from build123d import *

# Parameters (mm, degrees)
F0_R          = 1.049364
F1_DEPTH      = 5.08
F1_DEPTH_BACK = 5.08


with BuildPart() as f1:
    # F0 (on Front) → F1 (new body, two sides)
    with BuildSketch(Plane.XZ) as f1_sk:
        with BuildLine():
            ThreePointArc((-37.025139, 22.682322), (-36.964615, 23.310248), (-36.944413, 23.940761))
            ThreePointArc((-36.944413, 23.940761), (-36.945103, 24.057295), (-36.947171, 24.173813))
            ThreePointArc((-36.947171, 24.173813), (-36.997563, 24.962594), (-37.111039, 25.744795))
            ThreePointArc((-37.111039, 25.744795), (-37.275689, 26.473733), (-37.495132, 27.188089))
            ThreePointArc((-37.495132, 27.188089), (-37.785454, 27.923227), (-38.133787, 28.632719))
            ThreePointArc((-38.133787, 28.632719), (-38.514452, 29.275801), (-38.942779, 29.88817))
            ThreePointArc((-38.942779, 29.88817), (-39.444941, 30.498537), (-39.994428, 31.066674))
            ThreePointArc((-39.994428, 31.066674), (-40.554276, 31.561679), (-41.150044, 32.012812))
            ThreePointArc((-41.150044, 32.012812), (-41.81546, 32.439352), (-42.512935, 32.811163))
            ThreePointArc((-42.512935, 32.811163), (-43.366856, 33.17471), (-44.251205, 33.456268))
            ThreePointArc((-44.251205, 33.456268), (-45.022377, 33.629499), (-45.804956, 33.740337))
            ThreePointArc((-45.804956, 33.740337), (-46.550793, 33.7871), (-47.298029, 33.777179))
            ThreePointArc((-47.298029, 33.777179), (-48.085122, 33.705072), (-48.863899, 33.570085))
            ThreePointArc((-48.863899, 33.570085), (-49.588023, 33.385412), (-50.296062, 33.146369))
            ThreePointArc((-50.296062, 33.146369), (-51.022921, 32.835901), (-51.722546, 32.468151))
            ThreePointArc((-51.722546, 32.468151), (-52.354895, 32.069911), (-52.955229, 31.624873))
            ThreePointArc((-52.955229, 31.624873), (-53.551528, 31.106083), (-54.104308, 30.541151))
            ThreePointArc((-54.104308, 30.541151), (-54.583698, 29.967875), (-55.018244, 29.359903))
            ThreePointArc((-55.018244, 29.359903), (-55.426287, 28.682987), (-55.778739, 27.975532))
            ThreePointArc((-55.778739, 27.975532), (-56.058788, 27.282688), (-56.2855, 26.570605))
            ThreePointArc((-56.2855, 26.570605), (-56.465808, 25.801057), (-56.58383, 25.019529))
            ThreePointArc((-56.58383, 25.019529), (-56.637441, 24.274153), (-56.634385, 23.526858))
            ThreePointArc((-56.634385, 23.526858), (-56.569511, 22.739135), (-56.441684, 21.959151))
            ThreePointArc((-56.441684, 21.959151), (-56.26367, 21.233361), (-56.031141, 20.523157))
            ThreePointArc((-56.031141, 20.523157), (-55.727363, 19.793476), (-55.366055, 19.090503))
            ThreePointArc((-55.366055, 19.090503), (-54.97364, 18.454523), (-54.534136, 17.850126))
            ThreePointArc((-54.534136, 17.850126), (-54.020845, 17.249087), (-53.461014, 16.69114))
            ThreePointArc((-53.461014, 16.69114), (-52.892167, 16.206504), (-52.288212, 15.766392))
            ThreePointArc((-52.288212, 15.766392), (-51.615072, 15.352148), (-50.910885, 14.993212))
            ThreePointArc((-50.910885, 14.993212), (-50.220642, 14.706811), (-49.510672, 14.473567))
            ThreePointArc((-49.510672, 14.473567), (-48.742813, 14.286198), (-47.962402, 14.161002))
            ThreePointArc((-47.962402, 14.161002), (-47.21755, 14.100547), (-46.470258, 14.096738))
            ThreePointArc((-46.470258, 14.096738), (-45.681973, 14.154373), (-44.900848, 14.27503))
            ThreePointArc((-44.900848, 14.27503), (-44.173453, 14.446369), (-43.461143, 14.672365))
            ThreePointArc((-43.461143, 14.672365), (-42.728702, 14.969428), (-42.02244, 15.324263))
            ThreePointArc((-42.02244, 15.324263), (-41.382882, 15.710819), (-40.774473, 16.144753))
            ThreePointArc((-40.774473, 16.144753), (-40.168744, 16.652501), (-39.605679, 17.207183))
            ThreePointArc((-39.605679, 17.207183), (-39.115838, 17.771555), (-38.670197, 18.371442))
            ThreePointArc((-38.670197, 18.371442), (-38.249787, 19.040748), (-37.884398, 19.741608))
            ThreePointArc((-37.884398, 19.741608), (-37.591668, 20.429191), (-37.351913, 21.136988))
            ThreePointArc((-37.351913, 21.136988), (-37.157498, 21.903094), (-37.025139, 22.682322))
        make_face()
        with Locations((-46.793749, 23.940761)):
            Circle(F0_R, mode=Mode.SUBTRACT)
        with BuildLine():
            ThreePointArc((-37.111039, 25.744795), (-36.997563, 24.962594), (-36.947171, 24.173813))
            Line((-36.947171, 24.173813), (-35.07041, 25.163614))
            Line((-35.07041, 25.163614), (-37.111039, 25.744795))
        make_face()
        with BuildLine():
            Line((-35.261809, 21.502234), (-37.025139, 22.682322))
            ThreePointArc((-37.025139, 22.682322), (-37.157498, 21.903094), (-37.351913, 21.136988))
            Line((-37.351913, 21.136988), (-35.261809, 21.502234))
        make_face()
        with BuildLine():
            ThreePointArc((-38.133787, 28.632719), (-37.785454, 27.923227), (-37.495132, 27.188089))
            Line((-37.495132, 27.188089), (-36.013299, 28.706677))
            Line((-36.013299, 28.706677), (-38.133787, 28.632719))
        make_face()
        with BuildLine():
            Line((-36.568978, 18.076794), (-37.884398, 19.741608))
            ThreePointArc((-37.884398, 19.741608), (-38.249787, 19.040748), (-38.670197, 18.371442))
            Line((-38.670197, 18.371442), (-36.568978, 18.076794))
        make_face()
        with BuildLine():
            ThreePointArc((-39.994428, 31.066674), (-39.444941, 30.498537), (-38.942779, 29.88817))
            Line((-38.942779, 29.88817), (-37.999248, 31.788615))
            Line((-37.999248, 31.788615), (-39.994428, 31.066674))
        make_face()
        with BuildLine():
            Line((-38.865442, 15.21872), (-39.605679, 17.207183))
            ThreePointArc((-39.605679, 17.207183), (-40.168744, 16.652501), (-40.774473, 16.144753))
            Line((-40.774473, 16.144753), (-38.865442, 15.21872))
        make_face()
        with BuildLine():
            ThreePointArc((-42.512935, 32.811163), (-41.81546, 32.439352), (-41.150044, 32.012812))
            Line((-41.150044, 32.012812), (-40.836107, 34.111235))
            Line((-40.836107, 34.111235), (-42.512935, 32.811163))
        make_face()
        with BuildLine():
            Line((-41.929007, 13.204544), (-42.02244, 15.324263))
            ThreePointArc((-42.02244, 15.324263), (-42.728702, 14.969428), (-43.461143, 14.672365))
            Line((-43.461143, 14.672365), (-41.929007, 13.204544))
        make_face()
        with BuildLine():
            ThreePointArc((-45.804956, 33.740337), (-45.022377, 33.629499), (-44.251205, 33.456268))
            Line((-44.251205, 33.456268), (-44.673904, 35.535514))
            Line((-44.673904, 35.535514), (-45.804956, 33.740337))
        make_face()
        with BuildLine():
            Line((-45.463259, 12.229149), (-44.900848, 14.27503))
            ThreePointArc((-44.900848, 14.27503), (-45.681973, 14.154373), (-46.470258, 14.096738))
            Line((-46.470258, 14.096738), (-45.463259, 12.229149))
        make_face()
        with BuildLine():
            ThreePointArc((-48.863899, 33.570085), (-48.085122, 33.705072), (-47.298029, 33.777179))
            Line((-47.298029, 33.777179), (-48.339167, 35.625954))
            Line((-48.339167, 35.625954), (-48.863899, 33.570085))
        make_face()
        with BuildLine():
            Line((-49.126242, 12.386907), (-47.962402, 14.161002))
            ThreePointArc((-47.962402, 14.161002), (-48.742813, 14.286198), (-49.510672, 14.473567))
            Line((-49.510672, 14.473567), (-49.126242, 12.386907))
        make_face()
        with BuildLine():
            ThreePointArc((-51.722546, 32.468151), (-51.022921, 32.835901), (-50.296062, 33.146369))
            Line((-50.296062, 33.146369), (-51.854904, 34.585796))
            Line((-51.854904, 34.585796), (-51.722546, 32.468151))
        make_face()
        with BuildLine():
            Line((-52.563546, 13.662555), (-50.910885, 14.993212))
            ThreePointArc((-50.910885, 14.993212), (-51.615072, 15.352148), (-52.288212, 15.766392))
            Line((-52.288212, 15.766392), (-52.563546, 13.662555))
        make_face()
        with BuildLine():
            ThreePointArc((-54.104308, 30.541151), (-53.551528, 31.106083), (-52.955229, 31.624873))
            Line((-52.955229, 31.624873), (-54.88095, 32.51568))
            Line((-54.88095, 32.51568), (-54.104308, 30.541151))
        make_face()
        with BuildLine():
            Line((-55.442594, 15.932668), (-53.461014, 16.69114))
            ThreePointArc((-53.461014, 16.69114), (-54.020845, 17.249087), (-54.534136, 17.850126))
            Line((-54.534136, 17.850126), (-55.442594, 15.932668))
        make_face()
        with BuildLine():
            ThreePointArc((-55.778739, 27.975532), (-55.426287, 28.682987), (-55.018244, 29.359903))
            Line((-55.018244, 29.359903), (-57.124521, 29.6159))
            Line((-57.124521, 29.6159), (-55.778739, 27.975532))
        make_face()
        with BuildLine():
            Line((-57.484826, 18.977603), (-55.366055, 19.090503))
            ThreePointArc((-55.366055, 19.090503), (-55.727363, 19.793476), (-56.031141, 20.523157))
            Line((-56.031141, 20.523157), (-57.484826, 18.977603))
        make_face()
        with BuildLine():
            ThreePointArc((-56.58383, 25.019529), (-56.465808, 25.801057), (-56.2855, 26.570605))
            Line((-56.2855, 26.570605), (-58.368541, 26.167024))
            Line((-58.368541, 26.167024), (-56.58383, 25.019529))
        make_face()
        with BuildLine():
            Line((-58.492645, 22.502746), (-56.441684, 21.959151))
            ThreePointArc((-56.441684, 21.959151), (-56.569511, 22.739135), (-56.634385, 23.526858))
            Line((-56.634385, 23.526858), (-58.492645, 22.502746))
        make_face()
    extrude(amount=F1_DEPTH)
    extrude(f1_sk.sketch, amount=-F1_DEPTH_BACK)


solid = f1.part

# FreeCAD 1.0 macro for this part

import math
import FreeCAD as App
import Part
import Sketcher
Q = App.Units.Quantity

doc = App.newDocument("Part")
body = doc.addObject("PartDesign::Body", "Body")

sketch1 = body.newObject("Sketcher::SketchObject", "Sketch")
sketch1.AttachmentSupport = (doc.getObject("XZ_Plane"), [""])
sketch1.MapMode = "FlatFace"
sketch1.addGeometry([
    Part.ArcOfCircle(Part.Circle(App.Vector(-46.79, 23.94, 0), App.Vector(0, 0, 1), 9.85), math.radians(-7.34), math.radians(0)),
    Part.ArcOfCircle(Part.Circle(App.Vector(-46.8, 23.94, 0), App.Vector(0, 0, 1), 9.85), math.radians(0), math.radians(1.36)),
    Part.LineSegment(App.Vector(-36.95, 24.17, 0), App.Vector(-35.07, 25.16, 0)),
    Part.LineSegment(App.Vector(-35.07, 25.16, 0), App.Vector(-37.11, 25.74, 0)),
    Part.ArcOfCircle(Part.Circle(App.Vector(-46.79, 23.94, 0), App.Vector(0, 0, 1), 9.85), math.radians(10.55), math.radians(19.25)),
    Part.LineSegment(App.Vector(-37.5, 27.19, 0), App.Vector(-36.01, 28.71, 0)),
    Part.LineSegment(App.Vector(-36.01, 28.71, 0), App.Vector(-38.13, 28.63, 0)),
    Part.ArcOfCircle(Part.Circle(App.Vector(-46.79, 23.94, 0), App.Vector(0, 0, 1), 9.85), math.radians(28.45), math.radians(37.15)),
    Part.LineSegment(App.Vector(-38.94, 29.89, 0), App.Vector(-38, 31.79, 0)),
    Part.LineSegment(App.Vector(-38, 31.79, 0), App.Vector(-39.99, 31.07, 0)),
    Part.ArcOfCircle(Part.Circle(App.Vector(-46.79, 23.94, 0), App.Vector(0, 0, 1), 9.85), math.radians(46.34), math.radians(55.04)),
    Part.LineSegment(App.Vector(-41.15, 32.01, 0), App.Vector(-40.84, 34.11, 0)),
    Part.LineSegment(App.Vector(-40.84, 34.11, 0), App.Vector(-42.51, 32.81, 0)),
    Part.ArcOfCircle(Part.Circle(App.Vector(-46.79, 23.94, 0), App.Vector(0, 0, 1), 9.85), math.radians(64.24), math.radians(75.04)),
    Part.LineSegment(App.Vector(-44.25, 33.46, 0), App.Vector(-44.67, 35.54, 0)),
    Part.LineSegment(App.Vector(-44.67, 35.54, 0), App.Vector(-45.8, 33.74, 0)),
    Part.ArcOfCircle(Part.Circle(App.Vector(-46.79, 23.94, 0), App.Vector(0, 0, 1), 9.85), math.radians(84.24), math.radians(92.93)),
    Part.LineSegment(App.Vector(-47.3, 33.78, 0), App.Vector(-48.34, 35.63, 0)),
    Part.LineSegment(App.Vector(-48.34, 35.63, 0), App.Vector(-48.86, 33.57, 0)),
    Part.ArcOfCircle(Part.Circle(App.Vector(-46.79, 23.94, 0), App.Vector(0, 0, 1), 9.85), math.radians(102.13), math.radians(110.83)),
    Part.LineSegment(App.Vector(-50.3, 33.15, 0), App.Vector(-51.85, 34.59, 0)),
    Part.LineSegment(App.Vector(-51.85, 34.59, 0), App.Vector(-51.72, 32.47, 0)),
    Part.ArcOfCircle(Part.Circle(App.Vector(-46.79, 23.94, 0), App.Vector(0, 0, 1), 9.85), math.radians(120.03), math.radians(128.72)),
    Part.LineSegment(App.Vector(-52.96, 31.62, 0), App.Vector(-54.88, 32.52, 0)),
    Part.LineSegment(App.Vector(-54.88, 32.52, 0), App.Vector(-54.1, 30.54, 0)),
    Part.ArcOfCircle(Part.Circle(App.Vector(-46.79, 23.94, 0), App.Vector(0, 0, 1), 9.85), math.radians(137.92), math.radians(146.62)),
    Part.LineSegment(App.Vector(-55.02, 29.36, 0), App.Vector(-57.12, 29.62, 0)),
    Part.LineSegment(App.Vector(-57.12, 29.62, 0), App.Vector(-55.78, 27.98, 0)),
    Part.ArcOfCircle(Part.Circle(App.Vector(-46.79, 23.94, 0), App.Vector(0, 0, 1), 9.85), math.radians(155.82), math.radians(164.51)),
    Part.LineSegment(App.Vector(-56.29, 26.57, 0), App.Vector(-58.37, 26.17, 0)),
    Part.LineSegment(App.Vector(-58.37, 26.17, 0), App.Vector(-56.58, 25.02, 0)),
    Part.ArcOfCircle(Part.Circle(App.Vector(-46.79, 23.94, 0), App.Vector(0, 0, 1), 9.85), math.radians(173.71), math.radians(182.41)),
    Part.LineSegment(App.Vector(-56.63, 23.53, 0), App.Vector(-58.49, 22.5, 0)),
    Part.LineSegment(App.Vector(-58.49, 22.5, 0), App.Vector(-56.44, 21.96, 0)),
    Part.ArcOfCircle(Part.Circle(App.Vector(-46.79, 23.94, 0), App.Vector(0, 0, 1), 9.85), math.radians(-168.39), math.radians(-159.7)),
    Part.LineSegment(App.Vector(-56.03, 20.52, 0), App.Vector(-57.48, 18.98, 0)),
    Part.LineSegment(App.Vector(-57.48, 18.98, 0), App.Vector(-55.37, 19.09, 0)),
    Part.ArcOfCircle(Part.Circle(App.Vector(-46.79, 23.94, 0), App.Vector(0, 0, 1), 9.85), math.radians(-150.5), math.radians(-141.8)),
    Part.LineSegment(App.Vector(-54.53, 17.85, 0), App.Vector(-55.44, 15.93, 0)),
    Part.LineSegment(App.Vector(-55.44, 15.93, 0), App.Vector(-53.46, 16.69, 0)),
    Part.ArcOfCircle(Part.Circle(App.Vector(-46.79, 23.94, 0), App.Vector(0, 0, 1), 9.85), math.radians(-132.6), math.radians(-123.91)),
    Part.LineSegment(App.Vector(-52.29, 15.77, 0), App.Vector(-52.56, 13.66, 0)),
    Part.LineSegment(App.Vector(-52.56, 13.66, 0), App.Vector(-50.91, 14.99, 0)),
    Part.ArcOfCircle(Part.Circle(App.Vector(-46.79, 23.94, 0), App.Vector(0, 0, 1), 9.85), math.radians(-114.71), math.radians(-106.01)),
    Part.LineSegment(App.Vector(-49.51, 14.47, 0), App.Vector(-49.13, 12.39, 0)),
    Part.LineSegment(App.Vector(-49.13, 12.39, 0), App.Vector(-47.96, 14.16, 0)),
    Part.ArcOfCircle(Part.Circle(App.Vector(-46.79, 23.94, 0), App.Vector(0, 0, 1), 9.85), math.radians(-96.81), math.radians(-88.12)),
    Part.LineSegment(App.Vector(-46.47, 14.1, 0), App.Vector(-45.46, 12.23, 0)),
    Part.LineSegment(App.Vector(-45.46, 12.23, 0), App.Vector(-44.9, 14.28, 0)),
    Part.ArcOfCircle(Part.Circle(App.Vector(-46.79, 23.94, 0), App.Vector(0, 0, 1), 9.85), math.radians(-78.92), math.radians(-70.22)),
    Part.LineSegment(App.Vector(-43.46, 14.67, 0), App.Vector(-41.93, 13.2, 0)),
    Part.LineSegment(App.Vector(-41.93, 13.2, 0), App.Vector(-42.02, 15.32, 0)),
    Part.ArcOfCircle(Part.Circle(App.Vector(-46.79, 23.94, 0), App.Vector(0, 0, 1), 9.85), math.radians(-61.02), math.radians(-52.33)),
    Part.LineSegment(App.Vector(-40.77, 16.14, 0), App.Vector(-38.87, 15.22, 0)),
    Part.LineSegment(App.Vector(-38.87, 15.22, 0), App.Vector(-39.61, 17.21, 0)),
    Part.ArcOfCircle(Part.Circle(App.Vector(-46.79, 23.94, 0), App.Vector(0, 0, 1), 9.85), math.radians(-43.13), math.radians(-34.43)),
    Part.LineSegment(App.Vector(-38.67, 18.37, 0), App.Vector(-36.57, 18.08, 0)),
    Part.LineSegment(App.Vector(-36.57, 18.08, 0), App.Vector(-37.88, 19.74, 0)),
    Part.ArcOfCircle(Part.Circle(App.Vector(-46.79, 23.94, 0), App.Vector(0, 0, 1), 9.85), math.radians(-25.24), math.radians(-16.54)),
    Part.LineSegment(App.Vector(-37.35, 21.14, 0), App.Vector(-35.26, 21.5, 0)),
    Part.LineSegment(App.Vector(-35.26, 21.5, 0), App.Vector(-37.03, 22.68, 0)),
    Part.Circle(App.Vector(-46.79, 23.94, 0), App.Vector(0, 0, 1), 1.05),
], False)
sketch1.addConstraint([
    Sketcher.Constraint("Coincident", 0, 2, 1, 1),
    Sketcher.Constraint("Coincident", 1, 2, 2, 1),
    Sketcher.Constraint("Coincident", 2, 2, 3, 1),
    Sketcher.Constraint("Coincident", 3, 2, 4, 1),
    Sketcher.Constraint("Coincident", 4, 2, 5, 1),
    Sketcher.Constraint("Coincident", 5, 2, 6, 1),
    Sketcher.Constraint("Coincident", 6, 2, 7, 1),
    Sketcher.Constraint("Coincident", 7, 2, 8, 1),
    Sketcher.Constraint("Coincident", 8, 2, 9, 1),
    Sketcher.Constraint("Coincident", 9, 2, 10, 1),
    Sketcher.Constraint("Coincident", 10, 2, 11, 1),
    Sketcher.Constraint("Coincident", 11, 2, 12, 1),
    Sketcher.Constraint("Coincident", 12, 2, 13, 1),
    Sketcher.Constraint("Coincident", 13, 2, 14, 1),
    Sketcher.Constraint("Coincident", 14, 2, 15, 1),
    Sketcher.Constraint("Coincident", 15, 2, 16, 1),
    Sketcher.Constraint("Coincident", 16, 2, 17, 1),
    Sketcher.Constraint("Coincident", 17, 2, 18, 1),
    Sketcher.Constraint("Coincident", 18, 2, 19, 1),
    Sketcher.Constraint("Coincident", 19, 2, 20, 1),
    Sketcher.Constraint("Coincident", 20, 2, 21, 1),
    Sketcher.Constraint("Coincident", 21, 2, 22, 1),
    Sketcher.Constraint("Coincident", 22, 2, 23, 1),
    Sketcher.Constraint("Coincident", 23, 2, 24, 1),
    Sketcher.Constraint("Coincident", 24, 2, 25, 1),
    Sketcher.Constraint("Coincident", 25, 2, 26, 1),
    Sketcher.Constraint("Coincident", 26, 2, 27, 1),
    Sketcher.Constraint("Coincident", 27, 2, 28, 1),
    Sketcher.Constraint("Coincident", 28, 2, 29, 1),
    Sketcher.Constraint("Coincident", 29, 2, 30, 1),
    Sketcher.Constraint("Coincident", 30, 2, 31, 1),
    Sketcher.Constraint("Coincident", 31, 2, 32, 1),
    Sketcher.Constraint("Coincident", 32, 2, 33, 1),
    Sketcher.Constraint("Coincident", 33, 2, 34, 1),
    Sketcher.Constraint("Coincident", 34, 2, 35, 1),
    Sketcher.Constraint("Coincident", 35, 2, 36, 1),
    Sketcher.Constraint("Coincident", 36, 2, 37, 1),
    Sketcher.Constraint("Coincident", 37, 2, 38, 1),
    Sketcher.Constraint("Coincident", 38, 2, 39, 1),
    Sketcher.Constraint("Coincident", 39, 2, 40, 1),
    Sketcher.Constraint("Coincident", 40, 2, 41, 1),
    Sketcher.Constraint("Coincident", 41, 2, 42, 1),
    Sketcher.Constraint("Coincident", 42, 2, 43, 1),
    Sketcher.Constraint("Coincident", 43, 2, 44, 1),
    Sketcher.Constraint("Coincident", 44, 2, 45, 1),
    Sketcher.Constraint("Coincident", 45, 2, 46, 1),
    Sketcher.Constraint("Coincident", 46, 2, 47, 1),
    Sketcher.Constraint("Coincident", 47, 2, 48, 1),
    Sketcher.Constraint("Coincident", 48, 2, 49, 1),
    Sketcher.Constraint("Coincident", 49, 2, 50, 1),
    Sketcher.Constraint("Coincident", 50, 2, 51, 1),
    Sketcher.Constraint("Coincident", 51, 2, 52, 1),
    Sketcher.Constraint("Coincident", 52, 2, 53, 1),
    Sketcher.Constraint("Coincident", 53, 2, 54, 1),
    Sketcher.Constraint("Coincident", 54, 2, 55, 1),
    Sketcher.Constraint("Coincident", 55, 2, 56, 1),
    Sketcher.Constraint("Coincident", 56, 2, 57, 1),
    Sketcher.Constraint("Coincident", 57, 2, 58, 1),
    Sketcher.Constraint("Coincident", 58, 2, 59, 1),
    Sketcher.Constraint("Coincident", 59, 2, 60, 1),
    Sketcher.Constraint("Coincident", 60, 2, 0, 1),
    Sketcher.Constraint("Equal", 7, 55),
    Sketcher.Constraint("Equal", 55, 58),
    Sketcher.Constraint("Horizontal", 0, 3, 31, 3),
    Sketcher.Constraint("Horizontal", 49, 3, 55, 3),
    Sketcher.Constraint("Horizontal", 61, 3, 0, 2),
    Sketcher.Constraint("Vertical", 10, 3, 37, 3),
    Sketcher.Constraint("Vertical", 46, 3, 52, 3),
    Sketcher.Constraint("Vertical", 19, 3, 55, 3),
    Sketcher.Constraint("Vertical", 16, 3, 61, 3),
    Sketcher.Constraint("Equal", 2, 3),
    Sketcher.Constraint("Equal", 3, 5),
    Sketcher.Constraint("Equal", 5, 6),
    Sketcher.Constraint("Equal", 6, 8),
    Sketcher.Constraint("Equal", 8, 9),
    Sketcher.Constraint("Equal", 9, 11),
    Sketcher.Constraint("Equal", 11, 12),
    Sketcher.Constraint("Equal", 12, 14),
    Sketcher.Constraint("Equal", 14, 15),
    Sketcher.Constraint("Equal", 15, 17),
    Sketcher.Constraint("Equal", 17, 18),
    Sketcher.Constraint("Equal", 18, 20),
    Sketcher.Constraint("Equal", 20, 21),
    Sketcher.Constraint("Equal", 21, 23),
    Sketcher.Constraint("Equal", 23, 24),
    Sketcher.Constraint("Equal", 24, 26),
    Sketcher.Constraint("Equal", 26, 27),
    Sketcher.Constraint("Equal", 27, 29),
    Sketcher.Constraint("Equal", 29, 30),
    Sketcher.Constraint("Equal", 30, 32),
    Sketcher.Constraint("Equal", 32, 33),
    Sketcher.Constraint("Equal", 33, 35),
    Sketcher.Constraint("Equal", 35, 36),
    Sketcher.Constraint("Equal", 36, 38),
    Sketcher.Constraint("Equal", 38, 39),
    Sketcher.Constraint("Equal", 39, 41),
    Sketcher.Constraint("Equal", 41, 42),
    Sketcher.Constraint("Equal", 42, 44),
    Sketcher.Constraint("Equal", 44, 45),
    Sketcher.Constraint("Equal", 45, 47),
    Sketcher.Constraint("Equal", 47, 48),
    Sketcher.Constraint("Equal", 48, 50),
    Sketcher.Constraint("Equal", 50, 51),
    Sketcher.Constraint("Equal", 51, 53),
    Sketcher.Constraint("Equal", 53, 54),
    Sketcher.Constraint("Equal", 54, 56),
    Sketcher.Constraint("Equal", 56, 57),
    Sketcher.Constraint("Equal", 57, 59),
    Sketcher.Constraint("Equal", 59, 60),
    Sketcher.Constraint("Radius", 49, 9.849301),
    Sketcher.Constraint("Radius", 10, 9.849218),
    Sketcher.Constraint("Radius", 16, 9.849161),
    Sketcher.Constraint("Radius", 25, 9.849528),
    Sketcher.Constraint("Radius", 28, 9.84926),
    Sketcher.Constraint("Radius", 31, 9.849461),
    Sketcher.Constraint("Radius", 40, 9.849271),
    Sketcher.Constraint("Radius", 46, 9.849631),
    Sketcher.Constraint("Diameter", 61, 2.098728),
    Sketcher.Constraint("DistanceX", 31, 2, -1, 1, Q("2.2297002 in")),
    Sketcher.Constraint("Radius", 0, 9.849163),
    Sketcher.Constraint("Radius", 1, 9.854695),
    Sketcher.Constraint("Radius", 4, 9.849355),
    Sketcher.Constraint("Radius", 7, 9.849285),
    Sketcher.Constraint("Radius", 13, 9.849244),
    Sketcher.Constraint("Radius", 19, 9.849488),
    Sketcher.Constraint("Radius", 22, 9.849195),
    Sketcher.Constraint("Radius", 34, 9.849504),
    Sketcher.Constraint("Radius", 37, 9.849425),
    Sketcher.Constraint("Radius", 43, 9.849498),
    Sketcher.Constraint("Radius", 52, 9.849315),
    Sketcher.Constraint("DistanceX", 58, 3, -1, 1, 46.793701),
    Sketcher.Constraint("DistanceX", 5, 2, -1, 1, 36.013299),
    Sketcher.Constraint("DistanceX", 18, 2, -1, 1, 48.863899),
    Sketcher.Constraint("DistanceY", -1, 1, 26, 2, 29.6159),
    Sketcher.Constraint("DistanceX", 28, 2, -1, 1, 56.2855),
    Sketcher.Constraint("DistanceX", 45, 2, -1, 1, 47.962402),
    Sketcher.Constraint("Distance", 8, 2.121778),
    Sketcher.Constraint("DistanceX", 1, 3, -1, 1, 46.799108),
    Sketcher.Constraint("DistanceY", -1, 1, 1, 3, 23.94068),
    Sketcher.Constraint("DistanceX", 4, 3, -1, 1, 46.793769),
    Sketcher.Constraint("DistanceX", 13, 3, -1, 1, 46.793718),
    Sketcher.Constraint("DistanceX", 16, 3, -1, 1, 46.79375),
    Sketcher.Constraint("DistanceX", 19, 3, -1, 1, 46.79371),
    Sketcher.Constraint("DistanceY", -1, 1, 22, 3, 23.940879),
    Sketcher.Constraint("DistanceX", 28, 3, -1, 1, 46.79382),
    Sketcher.Constraint("DistanceY", -1, 1, 28, 3, 23.940789),
    Sketcher.Constraint("DistanceX", 40, 3, -1, 1, 46.793788),
    Sketcher.Constraint("DistanceY", -1, 1, 40, 3, 23.940708),
    Sketcher.Constraint("DistanceX", 49, 3, -1, 1, 46.79374),
    Sketcher.Constraint("DistanceX", 52, 3, -1, 1, 46.793738),
    Sketcher.Constraint("DistanceY", -1, 1, 58, 3, 23.940739),
    Sketcher.Constraint("DistanceY", -1, 1, 61, 3, 23.940761),
    Sketcher.Constraint("DistanceX", 1, 2, -1, 1, 36.947171),
    Sketcher.Constraint("DistanceX", 2, 2, -1, 1, 35.07041),
    Sketcher.Constraint("DistanceX", 3, 2, -1, 1, 37.111039),
    Sketcher.Constraint("DistanceY", -1, 1, 4, 2, 27.188089),
    Sketcher.Constraint("DistanceY", -1, 1, 6, 2, 28.632719),
    Sketcher.Constraint("DistanceX", 7, 2, -1, 1, 38.942779),
    Sketcher.Constraint("DistanceY", -1, 1, 7, 2, 29.88817),
    Sketcher.Constraint("DistanceX", 16, 2, -1, 1, 47.298029),
    Sketcher.Constraint("DistanceY", -1, 1, 16, 2, 33.777179),
    Sketcher.Constraint("DistanceY", -1, 1, 19, 2, 33.146369),
    Sketcher.Constraint("DistanceY", -1, 1, 21, 2, 32.468151),
    Sketcher.Constraint("DistanceX", 22, 2, -1, 1, 52.955229),
    Sketcher.Constraint("DistanceX", 23, 2, -1, 1, 54.88095),
    Sketcher.Constraint("DistanceY", -1, 1, 23, 2, 32.51568),
    Sketcher.Constraint("DistanceX", 24, 2, -1, 1, 54.104308),
    Sketcher.Constraint("DistanceX", 26, 2, -1, 1, 57.124521),
    Sketcher.Constraint("DistanceX", 29, 2, -1, 1, 58.368541),
    Sketcher.Constraint("DistanceX", 30, 2, -1, 1, 56.58383),
    Sketcher.Constraint("DistanceY", -1, 1, 31, 2, 23.526858),
    Sketcher.Constraint("DistanceY", -1, 1, 33, 2, 21.959151),
    Sketcher.Constraint("DistanceX", 34, 2, -1, 1, 56.031141),
    Sketcher.Constraint("DistanceY", -1, 1, 39, 2, 16.69114),
    Sketcher.Constraint("DistanceX", 40, 2, -1, 1, 52.288212),
    Sketcher.Constraint("DistanceX", 44, 2, -1, 1, 49.126242),
    Sketcher.Constraint("DistanceX", 47, 2, -1, 1, 45.463259),
    Sketcher.Constraint("DistanceY", -1, 1, 47, 2, 12.229149),
    Sketcher.Constraint("DistanceX", 48, 2, -1, 1, 44.900848),
    Sketcher.Constraint("DistanceX", 51, 2, -1, 1, 42.02244),
    Sketcher.Constraint("DistanceY", -1, 1, 53, 2, 15.21872),
    Sketcher.Constraint("DistanceX", 54, 2, -1, 1, 39.605679),
    Sketcher.Constraint("DistanceY", -1, 1, 55, 2, 18.371442),
    Sketcher.Constraint("DistanceX", 59, 2, -1, 1, 35.261809),
    Sketcher.Constraint("DistanceX", 60, 2, -1, 1, 37.025139),
    Sketcher.Constraint("DistanceX", 10, 3, -1, 1, 46.793677),
    Sketcher.Constraint("DistanceY", -1, 1, 10, 3, 23.940854),
    Sketcher.Constraint("DistanceY", -1, 1, 13, 3, 23.940847),
    Sketcher.Constraint("DistanceY", -1, 1, 19, 3, 23.940613),
    Sketcher.Constraint("DistanceX", 25, 3, -1, 1, 46.793596),
    Sketcher.Constraint("DistanceX", 34, 3, -1, 1, 46.793588),
    Sketcher.Constraint("DistanceY", -1, 1, 34, 3, 23.940807),
    Sketcher.Constraint("DistanceY", -1, 1, 37, 3, 23.940813),
    Sketcher.Constraint("DistanceX", 43, 3, -1, 1, 46.793696),
    Sketcher.Constraint("DistanceY", -1, 1, 43, 3, 23.940913),
    Sketcher.Constraint("DistanceY", -1, 1, 46, 3, 23.941056),
    Sketcher.Constraint("DistanceY", -1, 1, 52, 3, 23.940743),
    Sketcher.Constraint("DistanceX", 8, 2, -1, 1, 37.999248),
    Sketcher.Constraint("DistanceX", 10, 2, -1, 1, 41.150044),
    Sketcher.Constraint("DistanceX", 11, 2, -1, 1, 40.836107),
    Sketcher.Constraint("DistanceX", 13, 2, -1, 1, 44.251205),
    Sketcher.Constraint("DistanceX", 14, 2, -1, 1, 44.673904),
    Sketcher.Constraint("DistanceX", 35, 2, -1, 1, 57.484826),
    Sketcher.Constraint("DistanceX", 37, 2, -1, 1, 54.534136),
    Sketcher.Constraint("DistanceX", 41, 2, -1, 1, 52.563546),
    Sketcher.Constraint("DistanceX", 49, 2, -1, 1, 43.461143),
    Sketcher.Constraint("DistanceX", 56, 2, -1, 1, 36.568978),
])
pad1 = body.newObject("PartDesign::Pad", "Pad")
pad1.Profile = sketch1
pad1.Type = "TwoLengths"
pad1.Length = Q("0.2 in")
pad1.Length2 = Q("0.2 in")

doc.recompute()
